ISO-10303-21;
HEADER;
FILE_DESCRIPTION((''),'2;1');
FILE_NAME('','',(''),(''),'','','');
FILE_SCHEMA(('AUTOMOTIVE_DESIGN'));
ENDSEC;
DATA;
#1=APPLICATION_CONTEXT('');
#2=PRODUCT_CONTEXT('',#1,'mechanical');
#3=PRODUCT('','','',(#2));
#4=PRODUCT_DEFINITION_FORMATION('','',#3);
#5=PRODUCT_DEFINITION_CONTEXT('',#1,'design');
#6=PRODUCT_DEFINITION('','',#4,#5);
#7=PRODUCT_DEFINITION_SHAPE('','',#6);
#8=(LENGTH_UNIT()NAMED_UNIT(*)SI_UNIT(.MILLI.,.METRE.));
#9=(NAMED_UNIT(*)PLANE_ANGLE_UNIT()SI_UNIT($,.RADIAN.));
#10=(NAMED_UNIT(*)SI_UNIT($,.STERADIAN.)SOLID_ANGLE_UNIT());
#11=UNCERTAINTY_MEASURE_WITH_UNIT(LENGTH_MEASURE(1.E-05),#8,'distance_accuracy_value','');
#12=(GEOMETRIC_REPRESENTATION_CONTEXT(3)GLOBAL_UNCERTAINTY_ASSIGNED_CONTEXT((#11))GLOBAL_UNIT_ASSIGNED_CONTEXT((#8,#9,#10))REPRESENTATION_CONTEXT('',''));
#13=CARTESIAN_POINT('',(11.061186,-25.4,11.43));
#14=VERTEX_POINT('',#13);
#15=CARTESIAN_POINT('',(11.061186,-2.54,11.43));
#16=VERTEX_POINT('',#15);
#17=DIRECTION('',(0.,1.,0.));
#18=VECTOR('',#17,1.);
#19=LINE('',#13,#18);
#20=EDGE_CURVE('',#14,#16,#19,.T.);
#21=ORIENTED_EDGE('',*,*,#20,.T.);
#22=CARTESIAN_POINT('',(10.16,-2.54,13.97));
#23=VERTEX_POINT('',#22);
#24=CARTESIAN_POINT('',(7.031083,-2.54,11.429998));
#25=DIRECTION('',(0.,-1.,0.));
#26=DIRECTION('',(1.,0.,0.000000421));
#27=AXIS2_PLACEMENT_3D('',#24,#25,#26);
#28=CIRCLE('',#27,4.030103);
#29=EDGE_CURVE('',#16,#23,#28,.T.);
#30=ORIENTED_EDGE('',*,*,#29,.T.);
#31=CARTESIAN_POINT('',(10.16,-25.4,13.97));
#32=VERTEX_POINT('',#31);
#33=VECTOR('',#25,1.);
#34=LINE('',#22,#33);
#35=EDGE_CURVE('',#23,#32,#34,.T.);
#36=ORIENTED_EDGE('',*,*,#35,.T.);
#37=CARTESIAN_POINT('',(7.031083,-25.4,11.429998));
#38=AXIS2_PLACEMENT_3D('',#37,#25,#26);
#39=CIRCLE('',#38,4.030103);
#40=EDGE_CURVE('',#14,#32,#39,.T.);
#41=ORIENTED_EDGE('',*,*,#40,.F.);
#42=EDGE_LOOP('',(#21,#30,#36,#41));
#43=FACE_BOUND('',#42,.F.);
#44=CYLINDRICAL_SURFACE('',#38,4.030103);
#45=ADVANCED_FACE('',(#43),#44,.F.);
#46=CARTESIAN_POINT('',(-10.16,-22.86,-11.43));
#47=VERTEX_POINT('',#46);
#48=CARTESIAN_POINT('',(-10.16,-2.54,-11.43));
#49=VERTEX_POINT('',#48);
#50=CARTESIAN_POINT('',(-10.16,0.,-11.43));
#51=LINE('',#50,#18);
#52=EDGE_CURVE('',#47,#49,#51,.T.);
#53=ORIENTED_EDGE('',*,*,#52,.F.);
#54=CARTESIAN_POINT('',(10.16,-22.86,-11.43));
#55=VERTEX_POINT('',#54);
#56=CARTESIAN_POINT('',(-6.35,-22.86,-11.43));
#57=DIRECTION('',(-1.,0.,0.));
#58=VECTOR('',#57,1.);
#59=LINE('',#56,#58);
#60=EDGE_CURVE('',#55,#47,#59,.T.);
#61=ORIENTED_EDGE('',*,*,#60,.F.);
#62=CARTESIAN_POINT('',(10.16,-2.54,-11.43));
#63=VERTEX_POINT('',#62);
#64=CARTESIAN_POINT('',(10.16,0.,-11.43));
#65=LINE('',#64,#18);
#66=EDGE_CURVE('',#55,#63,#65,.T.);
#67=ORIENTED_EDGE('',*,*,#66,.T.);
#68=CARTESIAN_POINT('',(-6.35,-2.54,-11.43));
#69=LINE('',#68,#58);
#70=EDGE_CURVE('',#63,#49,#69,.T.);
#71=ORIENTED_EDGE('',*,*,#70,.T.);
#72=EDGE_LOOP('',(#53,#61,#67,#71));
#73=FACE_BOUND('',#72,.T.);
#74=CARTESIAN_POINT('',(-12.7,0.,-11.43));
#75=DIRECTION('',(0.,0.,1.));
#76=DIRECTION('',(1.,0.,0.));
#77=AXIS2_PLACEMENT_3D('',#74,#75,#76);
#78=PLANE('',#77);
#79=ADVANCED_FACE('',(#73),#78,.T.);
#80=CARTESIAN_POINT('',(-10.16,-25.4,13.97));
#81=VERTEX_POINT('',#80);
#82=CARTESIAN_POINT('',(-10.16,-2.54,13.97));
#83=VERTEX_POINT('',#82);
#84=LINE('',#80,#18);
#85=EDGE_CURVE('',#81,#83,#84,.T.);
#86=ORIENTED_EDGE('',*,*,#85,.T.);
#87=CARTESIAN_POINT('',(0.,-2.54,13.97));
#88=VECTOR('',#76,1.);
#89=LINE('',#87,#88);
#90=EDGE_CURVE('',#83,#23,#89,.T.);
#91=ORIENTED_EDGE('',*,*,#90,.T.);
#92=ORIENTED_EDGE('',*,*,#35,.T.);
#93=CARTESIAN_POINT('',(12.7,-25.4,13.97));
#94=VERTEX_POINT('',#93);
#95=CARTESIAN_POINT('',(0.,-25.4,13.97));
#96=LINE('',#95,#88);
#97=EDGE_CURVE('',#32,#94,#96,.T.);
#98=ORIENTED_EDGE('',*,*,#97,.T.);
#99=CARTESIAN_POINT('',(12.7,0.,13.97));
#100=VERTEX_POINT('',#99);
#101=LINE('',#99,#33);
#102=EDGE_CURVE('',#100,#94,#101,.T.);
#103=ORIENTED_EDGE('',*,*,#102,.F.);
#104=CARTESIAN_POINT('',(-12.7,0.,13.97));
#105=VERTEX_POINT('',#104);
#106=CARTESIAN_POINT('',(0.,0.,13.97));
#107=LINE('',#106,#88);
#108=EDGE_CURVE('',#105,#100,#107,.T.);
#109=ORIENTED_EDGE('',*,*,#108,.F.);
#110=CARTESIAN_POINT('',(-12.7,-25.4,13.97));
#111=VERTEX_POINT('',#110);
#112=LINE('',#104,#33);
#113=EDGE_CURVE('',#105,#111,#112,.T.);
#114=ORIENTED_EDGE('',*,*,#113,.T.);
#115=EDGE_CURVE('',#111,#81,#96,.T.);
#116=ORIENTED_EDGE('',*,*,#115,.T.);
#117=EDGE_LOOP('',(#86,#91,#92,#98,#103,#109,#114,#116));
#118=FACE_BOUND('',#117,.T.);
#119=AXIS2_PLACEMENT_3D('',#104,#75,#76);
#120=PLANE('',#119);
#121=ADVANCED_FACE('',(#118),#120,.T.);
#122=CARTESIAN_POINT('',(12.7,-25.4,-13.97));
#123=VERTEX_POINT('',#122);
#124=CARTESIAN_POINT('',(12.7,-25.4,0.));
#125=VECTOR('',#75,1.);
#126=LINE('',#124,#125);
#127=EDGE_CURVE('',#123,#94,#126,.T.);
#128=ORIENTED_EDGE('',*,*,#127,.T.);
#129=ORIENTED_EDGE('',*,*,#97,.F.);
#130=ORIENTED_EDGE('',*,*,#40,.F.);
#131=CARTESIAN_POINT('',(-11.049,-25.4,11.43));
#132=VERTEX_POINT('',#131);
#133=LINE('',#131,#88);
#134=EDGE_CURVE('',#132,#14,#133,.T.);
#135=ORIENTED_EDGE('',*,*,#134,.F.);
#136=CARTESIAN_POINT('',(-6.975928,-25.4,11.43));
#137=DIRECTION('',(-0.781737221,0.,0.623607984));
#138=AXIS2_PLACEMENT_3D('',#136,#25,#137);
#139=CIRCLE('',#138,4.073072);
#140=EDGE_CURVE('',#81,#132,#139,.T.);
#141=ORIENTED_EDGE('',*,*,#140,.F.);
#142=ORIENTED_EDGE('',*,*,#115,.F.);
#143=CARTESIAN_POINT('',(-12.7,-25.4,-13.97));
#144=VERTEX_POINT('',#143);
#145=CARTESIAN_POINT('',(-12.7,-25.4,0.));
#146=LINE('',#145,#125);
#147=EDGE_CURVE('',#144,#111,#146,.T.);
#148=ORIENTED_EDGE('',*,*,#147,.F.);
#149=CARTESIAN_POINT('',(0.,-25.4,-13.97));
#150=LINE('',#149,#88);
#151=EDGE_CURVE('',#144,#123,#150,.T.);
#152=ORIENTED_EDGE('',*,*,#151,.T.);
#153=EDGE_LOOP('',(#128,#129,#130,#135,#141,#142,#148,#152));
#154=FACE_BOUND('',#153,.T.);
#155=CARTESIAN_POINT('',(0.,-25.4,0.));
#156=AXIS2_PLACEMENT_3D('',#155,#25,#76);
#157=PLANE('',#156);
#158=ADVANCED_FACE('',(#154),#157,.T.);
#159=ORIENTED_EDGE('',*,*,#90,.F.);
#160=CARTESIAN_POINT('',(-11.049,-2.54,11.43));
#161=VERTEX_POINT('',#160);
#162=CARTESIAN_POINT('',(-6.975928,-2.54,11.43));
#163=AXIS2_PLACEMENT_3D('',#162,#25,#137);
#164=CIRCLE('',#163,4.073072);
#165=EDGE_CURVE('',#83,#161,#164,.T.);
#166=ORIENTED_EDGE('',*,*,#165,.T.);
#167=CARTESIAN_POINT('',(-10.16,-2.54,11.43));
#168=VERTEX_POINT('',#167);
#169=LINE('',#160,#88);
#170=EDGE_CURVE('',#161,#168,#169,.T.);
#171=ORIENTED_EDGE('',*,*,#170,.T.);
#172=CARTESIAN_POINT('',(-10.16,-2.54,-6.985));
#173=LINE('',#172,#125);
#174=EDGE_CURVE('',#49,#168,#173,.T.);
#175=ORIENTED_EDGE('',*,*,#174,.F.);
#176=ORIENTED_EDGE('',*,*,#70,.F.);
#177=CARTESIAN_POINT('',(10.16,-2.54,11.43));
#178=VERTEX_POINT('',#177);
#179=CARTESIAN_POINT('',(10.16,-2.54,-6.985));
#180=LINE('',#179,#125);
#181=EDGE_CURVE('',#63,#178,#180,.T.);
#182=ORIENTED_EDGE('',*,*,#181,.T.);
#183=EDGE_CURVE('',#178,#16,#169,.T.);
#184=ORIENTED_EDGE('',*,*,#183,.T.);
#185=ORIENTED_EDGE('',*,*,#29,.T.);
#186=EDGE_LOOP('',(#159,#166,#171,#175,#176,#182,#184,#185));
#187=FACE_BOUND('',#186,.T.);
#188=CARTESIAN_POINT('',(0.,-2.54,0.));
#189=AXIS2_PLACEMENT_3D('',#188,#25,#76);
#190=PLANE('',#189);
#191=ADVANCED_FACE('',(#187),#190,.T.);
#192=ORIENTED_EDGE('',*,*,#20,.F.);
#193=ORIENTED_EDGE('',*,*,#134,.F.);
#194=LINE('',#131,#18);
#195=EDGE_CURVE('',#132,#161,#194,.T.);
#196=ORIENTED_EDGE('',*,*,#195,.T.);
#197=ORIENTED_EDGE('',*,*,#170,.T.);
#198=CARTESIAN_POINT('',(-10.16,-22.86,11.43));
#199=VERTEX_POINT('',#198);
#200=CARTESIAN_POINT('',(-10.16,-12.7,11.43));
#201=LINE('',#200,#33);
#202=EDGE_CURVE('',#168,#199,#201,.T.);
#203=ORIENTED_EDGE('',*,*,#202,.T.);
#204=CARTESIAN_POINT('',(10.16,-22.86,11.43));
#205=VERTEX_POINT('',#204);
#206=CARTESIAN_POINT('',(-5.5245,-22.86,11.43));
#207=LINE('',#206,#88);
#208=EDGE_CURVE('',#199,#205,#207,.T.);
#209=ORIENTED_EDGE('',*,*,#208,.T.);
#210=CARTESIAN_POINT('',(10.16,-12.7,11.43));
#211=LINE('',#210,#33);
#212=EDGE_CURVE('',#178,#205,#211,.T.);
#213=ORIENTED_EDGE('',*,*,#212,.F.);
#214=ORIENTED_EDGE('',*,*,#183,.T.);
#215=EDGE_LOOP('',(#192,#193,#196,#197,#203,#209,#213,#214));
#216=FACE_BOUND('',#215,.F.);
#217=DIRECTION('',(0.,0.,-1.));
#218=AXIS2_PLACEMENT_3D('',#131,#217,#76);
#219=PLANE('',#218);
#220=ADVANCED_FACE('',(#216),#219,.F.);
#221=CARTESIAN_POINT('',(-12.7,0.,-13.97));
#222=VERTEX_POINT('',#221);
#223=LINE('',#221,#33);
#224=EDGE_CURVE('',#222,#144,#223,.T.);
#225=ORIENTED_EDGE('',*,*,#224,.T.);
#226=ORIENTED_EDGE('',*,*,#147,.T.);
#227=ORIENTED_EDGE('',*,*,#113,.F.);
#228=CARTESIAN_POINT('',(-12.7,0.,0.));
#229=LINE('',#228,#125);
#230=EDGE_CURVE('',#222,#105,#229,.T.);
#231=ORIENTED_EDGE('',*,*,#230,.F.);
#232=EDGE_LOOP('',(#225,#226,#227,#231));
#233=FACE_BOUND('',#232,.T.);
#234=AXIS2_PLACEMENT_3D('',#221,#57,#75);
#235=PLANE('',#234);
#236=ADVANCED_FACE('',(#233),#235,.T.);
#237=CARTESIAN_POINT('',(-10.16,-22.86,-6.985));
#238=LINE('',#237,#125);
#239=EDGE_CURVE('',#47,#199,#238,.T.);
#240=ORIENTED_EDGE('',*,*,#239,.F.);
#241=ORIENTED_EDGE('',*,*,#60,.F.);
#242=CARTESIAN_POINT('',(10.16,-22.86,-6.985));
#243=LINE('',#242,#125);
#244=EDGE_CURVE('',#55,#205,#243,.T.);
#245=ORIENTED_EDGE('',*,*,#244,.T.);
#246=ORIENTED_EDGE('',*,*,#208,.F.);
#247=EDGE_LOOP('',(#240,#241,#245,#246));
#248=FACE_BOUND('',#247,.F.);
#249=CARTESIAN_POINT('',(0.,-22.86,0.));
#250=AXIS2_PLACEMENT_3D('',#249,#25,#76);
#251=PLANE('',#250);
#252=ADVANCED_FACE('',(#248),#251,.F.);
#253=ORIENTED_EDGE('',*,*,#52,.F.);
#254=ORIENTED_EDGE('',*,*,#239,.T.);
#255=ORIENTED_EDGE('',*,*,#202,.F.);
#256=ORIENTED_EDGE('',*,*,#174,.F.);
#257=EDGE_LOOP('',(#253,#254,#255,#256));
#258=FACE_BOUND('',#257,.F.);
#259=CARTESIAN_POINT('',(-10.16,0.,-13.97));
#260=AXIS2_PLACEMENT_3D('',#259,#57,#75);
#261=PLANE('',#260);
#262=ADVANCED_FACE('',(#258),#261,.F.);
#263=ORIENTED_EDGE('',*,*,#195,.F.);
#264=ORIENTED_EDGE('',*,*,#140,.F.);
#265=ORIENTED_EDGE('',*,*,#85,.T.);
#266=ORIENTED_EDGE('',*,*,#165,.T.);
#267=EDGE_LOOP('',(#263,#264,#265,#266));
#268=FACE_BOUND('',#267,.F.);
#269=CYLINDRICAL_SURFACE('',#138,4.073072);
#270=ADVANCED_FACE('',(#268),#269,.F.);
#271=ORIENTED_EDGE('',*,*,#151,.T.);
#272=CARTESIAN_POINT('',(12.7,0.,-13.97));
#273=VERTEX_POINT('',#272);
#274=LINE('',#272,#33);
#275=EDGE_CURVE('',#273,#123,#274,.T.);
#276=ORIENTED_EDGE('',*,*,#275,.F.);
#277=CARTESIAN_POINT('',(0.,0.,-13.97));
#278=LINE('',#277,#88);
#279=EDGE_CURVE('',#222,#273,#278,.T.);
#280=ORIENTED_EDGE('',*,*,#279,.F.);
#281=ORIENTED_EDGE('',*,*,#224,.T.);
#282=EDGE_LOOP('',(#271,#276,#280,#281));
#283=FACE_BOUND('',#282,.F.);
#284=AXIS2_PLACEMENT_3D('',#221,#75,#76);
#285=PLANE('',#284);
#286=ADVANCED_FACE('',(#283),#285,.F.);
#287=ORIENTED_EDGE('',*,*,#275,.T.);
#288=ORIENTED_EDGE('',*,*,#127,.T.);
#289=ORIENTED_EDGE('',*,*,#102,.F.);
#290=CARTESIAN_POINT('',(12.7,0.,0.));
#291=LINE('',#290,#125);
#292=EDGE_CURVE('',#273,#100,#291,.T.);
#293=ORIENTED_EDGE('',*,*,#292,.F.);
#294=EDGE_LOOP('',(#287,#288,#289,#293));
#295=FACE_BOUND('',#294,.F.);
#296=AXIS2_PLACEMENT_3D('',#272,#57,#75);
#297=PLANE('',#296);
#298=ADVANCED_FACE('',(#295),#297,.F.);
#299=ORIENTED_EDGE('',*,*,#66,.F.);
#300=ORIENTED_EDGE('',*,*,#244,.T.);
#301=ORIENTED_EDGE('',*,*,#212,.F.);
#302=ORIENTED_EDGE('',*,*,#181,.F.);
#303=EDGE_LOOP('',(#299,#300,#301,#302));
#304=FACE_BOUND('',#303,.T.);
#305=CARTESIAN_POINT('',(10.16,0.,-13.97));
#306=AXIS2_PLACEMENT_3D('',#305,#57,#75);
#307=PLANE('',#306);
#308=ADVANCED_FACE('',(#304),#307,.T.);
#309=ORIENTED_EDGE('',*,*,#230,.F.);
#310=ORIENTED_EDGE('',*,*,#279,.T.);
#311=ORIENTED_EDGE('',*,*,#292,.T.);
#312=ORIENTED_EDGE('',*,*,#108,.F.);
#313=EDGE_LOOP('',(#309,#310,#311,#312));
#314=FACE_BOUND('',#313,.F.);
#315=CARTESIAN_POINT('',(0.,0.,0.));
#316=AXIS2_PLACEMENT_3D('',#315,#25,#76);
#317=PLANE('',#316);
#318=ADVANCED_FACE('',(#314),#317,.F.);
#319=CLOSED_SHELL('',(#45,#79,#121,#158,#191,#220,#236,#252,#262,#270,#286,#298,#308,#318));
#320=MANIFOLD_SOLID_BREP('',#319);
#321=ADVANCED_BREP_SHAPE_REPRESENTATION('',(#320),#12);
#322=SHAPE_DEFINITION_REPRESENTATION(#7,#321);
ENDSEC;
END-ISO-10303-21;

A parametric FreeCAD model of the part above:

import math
import FreeCAD as App
import Part
import Sketcher

V = App.Vector
Q = App.Units.Quantity


def faces_at(feature, points):
    """Names of the faces that lie closest to the given points."""
    faces = feature.Shape.Faces
    near = lambda p: min(range(len(faces)), key=lambda i: faces[i].distToShape(Part.Vertex(*p))[0])
    return sorted({f"Face{near(p) + 1}" for p in points})


def add_polygon(sketch, points):
    """Adds a closed chain of lines whose ends are joined by coincident constraints."""
    first, n = sketch.GeometryCount, len(points)
    for a, b in zip(points, points[1:] + points[:1]):
        sketch.addGeometry(Part.LineSegment(App.Vector(*a, 0), App.Vector(*b, 0)), False)
    for i in range(n):
        sketch.addConstraint(Sketcher.Constraint("Coincident", first + i, 2, first + (i + 1) % n, 1))

doc = App.newDocument("Part")
body = doc.addObject("PartDesign::Body", "Body")

# Sketch on XZ plane
sketch1 = doc.addObject("Sketcher::SketchObject", "Sketch")
body.addObject(sketch1)
sketch1.AttachmentSupport = (doc.XZ_Plane, [""])
sketch1.MapMode = "FlatFace"
add_polygon(sketch1, [(-12.7, 13.97), (-12.7, -13.97), (12.7, -13.97), (12.7, 13.97)])  # lines 0-3
sketch1.addConstraint([
    Sketcher.Constraint("Vertical", 0),
    Sketcher.Constraint("Horizontal", 1),
    Sketcher.Constraint("Vertical", 2),
    Sketcher.Constraint("Horizontal", 3),
    Sketcher.Constraint("Symmetric", 0, 2, 2, 2, -1, 1),
    Sketcher.Constraint("DistanceX", 1, 1, 1, 2, Q("1 in")),
    Sketcher.Constraint("DistanceY", 0, 2, 0, 1, Q("1.1 in")),
])
pad1 = doc.addObject("PartDesign::Pad", "Pad")
body.addObject(pad1)
pad1.Profile = sketch1
pad1.Length = Q("1 in")
doc.recompute()

thickness = doc.addObject("PartDesign::Thickness", "Thickness")
body.addObject(thickness)
thickness.Base = (pad1, faces_at(pad1, [(0, -12.7, 13.97)]))
thickness.Value = Q("0.1 in")
thickness.Reversed = True
thickness.Join = "Arc"

# Sketch on XZ plane
sketch2 = doc.addObject("Sketcher::SketchObject", "Sketch001")
body.addObject(sketch2)
sketch2.AttachmentSupport = (doc.XZ_Plane, [""])
sketch2.MapMode = "FlatFace"
sketch2.AttachmentOffset = App.Placement(V(0, 0, 1 * 25.4), App.Rotation())
sketch2.addGeometry([
    Part.LineSegment(V(-11.049, 11.43, 0), V(11.061186, 11.43, 0)),
    Part.ArcOfCircle(Part.Circle(V(7.031083, 11.429998, 0), V(0, 0, 1), 4.030103), math.radians(0.000024), math.radians(39.069106)),
    Part.LineSegment(V(10.16, 13.97, 0), V(-10.16, 13.97, 0)),
    Part.ArcOfCircle(Part.Circle(V(-6.975928, 11.43, 0), V(0, 0, 1), 4.073072), math.radians(141.41991), math.radians(179.999997)),
], False)
sketch2.addConstraint([
    Sketcher.Constraint("Coincident", 0, 2, 1, 1),
    Sketcher.Constraint("Coincident", 1, 2, 2, 1),
    Sketcher.Constraint("Coincident", 2, 2, 3, 1),
    Sketcher.Constraint("Coincident", 3, 2, 0, 1),
    Sketcher.Constraint("Horizontal", 0),
    Sketcher.Constraint("Horizontal", 2),
    Sketcher.Constraint("Horizontal", 1, 3, 3, 3),
    Sketcher.Constraint("Horizontal", 3, 3, 0, 2),
    Sketcher.Constraint("DistanceX", 2, 2, 2, 1, Q("0.8 in")),
    Sketcher.Constraint("DistanceX", -1, 1, 1, 2, Q("0.4 in")),
    Sketcher.Constraint("DistanceY", 0, 2, 1, 2, Q("0.1 in")),
    Sketcher.Constraint("DistanceY", -1, 1, 1, 3, Q("0.4499999 in")),
    Sketcher.Constraint("DistanceX", 3, 2, -1, 1, Q("0.435 in")),
    Sketcher.Constraint("Radius", 1, Q("4.030103 mm")),
])
pocket1 = doc.addObject("PartDesign::Pocket", "Pocket")
body.addObject(pocket1)
pocket1.Profile = sketch2
pocket1.Length = Q("0.9 in")

doc.recompute()
